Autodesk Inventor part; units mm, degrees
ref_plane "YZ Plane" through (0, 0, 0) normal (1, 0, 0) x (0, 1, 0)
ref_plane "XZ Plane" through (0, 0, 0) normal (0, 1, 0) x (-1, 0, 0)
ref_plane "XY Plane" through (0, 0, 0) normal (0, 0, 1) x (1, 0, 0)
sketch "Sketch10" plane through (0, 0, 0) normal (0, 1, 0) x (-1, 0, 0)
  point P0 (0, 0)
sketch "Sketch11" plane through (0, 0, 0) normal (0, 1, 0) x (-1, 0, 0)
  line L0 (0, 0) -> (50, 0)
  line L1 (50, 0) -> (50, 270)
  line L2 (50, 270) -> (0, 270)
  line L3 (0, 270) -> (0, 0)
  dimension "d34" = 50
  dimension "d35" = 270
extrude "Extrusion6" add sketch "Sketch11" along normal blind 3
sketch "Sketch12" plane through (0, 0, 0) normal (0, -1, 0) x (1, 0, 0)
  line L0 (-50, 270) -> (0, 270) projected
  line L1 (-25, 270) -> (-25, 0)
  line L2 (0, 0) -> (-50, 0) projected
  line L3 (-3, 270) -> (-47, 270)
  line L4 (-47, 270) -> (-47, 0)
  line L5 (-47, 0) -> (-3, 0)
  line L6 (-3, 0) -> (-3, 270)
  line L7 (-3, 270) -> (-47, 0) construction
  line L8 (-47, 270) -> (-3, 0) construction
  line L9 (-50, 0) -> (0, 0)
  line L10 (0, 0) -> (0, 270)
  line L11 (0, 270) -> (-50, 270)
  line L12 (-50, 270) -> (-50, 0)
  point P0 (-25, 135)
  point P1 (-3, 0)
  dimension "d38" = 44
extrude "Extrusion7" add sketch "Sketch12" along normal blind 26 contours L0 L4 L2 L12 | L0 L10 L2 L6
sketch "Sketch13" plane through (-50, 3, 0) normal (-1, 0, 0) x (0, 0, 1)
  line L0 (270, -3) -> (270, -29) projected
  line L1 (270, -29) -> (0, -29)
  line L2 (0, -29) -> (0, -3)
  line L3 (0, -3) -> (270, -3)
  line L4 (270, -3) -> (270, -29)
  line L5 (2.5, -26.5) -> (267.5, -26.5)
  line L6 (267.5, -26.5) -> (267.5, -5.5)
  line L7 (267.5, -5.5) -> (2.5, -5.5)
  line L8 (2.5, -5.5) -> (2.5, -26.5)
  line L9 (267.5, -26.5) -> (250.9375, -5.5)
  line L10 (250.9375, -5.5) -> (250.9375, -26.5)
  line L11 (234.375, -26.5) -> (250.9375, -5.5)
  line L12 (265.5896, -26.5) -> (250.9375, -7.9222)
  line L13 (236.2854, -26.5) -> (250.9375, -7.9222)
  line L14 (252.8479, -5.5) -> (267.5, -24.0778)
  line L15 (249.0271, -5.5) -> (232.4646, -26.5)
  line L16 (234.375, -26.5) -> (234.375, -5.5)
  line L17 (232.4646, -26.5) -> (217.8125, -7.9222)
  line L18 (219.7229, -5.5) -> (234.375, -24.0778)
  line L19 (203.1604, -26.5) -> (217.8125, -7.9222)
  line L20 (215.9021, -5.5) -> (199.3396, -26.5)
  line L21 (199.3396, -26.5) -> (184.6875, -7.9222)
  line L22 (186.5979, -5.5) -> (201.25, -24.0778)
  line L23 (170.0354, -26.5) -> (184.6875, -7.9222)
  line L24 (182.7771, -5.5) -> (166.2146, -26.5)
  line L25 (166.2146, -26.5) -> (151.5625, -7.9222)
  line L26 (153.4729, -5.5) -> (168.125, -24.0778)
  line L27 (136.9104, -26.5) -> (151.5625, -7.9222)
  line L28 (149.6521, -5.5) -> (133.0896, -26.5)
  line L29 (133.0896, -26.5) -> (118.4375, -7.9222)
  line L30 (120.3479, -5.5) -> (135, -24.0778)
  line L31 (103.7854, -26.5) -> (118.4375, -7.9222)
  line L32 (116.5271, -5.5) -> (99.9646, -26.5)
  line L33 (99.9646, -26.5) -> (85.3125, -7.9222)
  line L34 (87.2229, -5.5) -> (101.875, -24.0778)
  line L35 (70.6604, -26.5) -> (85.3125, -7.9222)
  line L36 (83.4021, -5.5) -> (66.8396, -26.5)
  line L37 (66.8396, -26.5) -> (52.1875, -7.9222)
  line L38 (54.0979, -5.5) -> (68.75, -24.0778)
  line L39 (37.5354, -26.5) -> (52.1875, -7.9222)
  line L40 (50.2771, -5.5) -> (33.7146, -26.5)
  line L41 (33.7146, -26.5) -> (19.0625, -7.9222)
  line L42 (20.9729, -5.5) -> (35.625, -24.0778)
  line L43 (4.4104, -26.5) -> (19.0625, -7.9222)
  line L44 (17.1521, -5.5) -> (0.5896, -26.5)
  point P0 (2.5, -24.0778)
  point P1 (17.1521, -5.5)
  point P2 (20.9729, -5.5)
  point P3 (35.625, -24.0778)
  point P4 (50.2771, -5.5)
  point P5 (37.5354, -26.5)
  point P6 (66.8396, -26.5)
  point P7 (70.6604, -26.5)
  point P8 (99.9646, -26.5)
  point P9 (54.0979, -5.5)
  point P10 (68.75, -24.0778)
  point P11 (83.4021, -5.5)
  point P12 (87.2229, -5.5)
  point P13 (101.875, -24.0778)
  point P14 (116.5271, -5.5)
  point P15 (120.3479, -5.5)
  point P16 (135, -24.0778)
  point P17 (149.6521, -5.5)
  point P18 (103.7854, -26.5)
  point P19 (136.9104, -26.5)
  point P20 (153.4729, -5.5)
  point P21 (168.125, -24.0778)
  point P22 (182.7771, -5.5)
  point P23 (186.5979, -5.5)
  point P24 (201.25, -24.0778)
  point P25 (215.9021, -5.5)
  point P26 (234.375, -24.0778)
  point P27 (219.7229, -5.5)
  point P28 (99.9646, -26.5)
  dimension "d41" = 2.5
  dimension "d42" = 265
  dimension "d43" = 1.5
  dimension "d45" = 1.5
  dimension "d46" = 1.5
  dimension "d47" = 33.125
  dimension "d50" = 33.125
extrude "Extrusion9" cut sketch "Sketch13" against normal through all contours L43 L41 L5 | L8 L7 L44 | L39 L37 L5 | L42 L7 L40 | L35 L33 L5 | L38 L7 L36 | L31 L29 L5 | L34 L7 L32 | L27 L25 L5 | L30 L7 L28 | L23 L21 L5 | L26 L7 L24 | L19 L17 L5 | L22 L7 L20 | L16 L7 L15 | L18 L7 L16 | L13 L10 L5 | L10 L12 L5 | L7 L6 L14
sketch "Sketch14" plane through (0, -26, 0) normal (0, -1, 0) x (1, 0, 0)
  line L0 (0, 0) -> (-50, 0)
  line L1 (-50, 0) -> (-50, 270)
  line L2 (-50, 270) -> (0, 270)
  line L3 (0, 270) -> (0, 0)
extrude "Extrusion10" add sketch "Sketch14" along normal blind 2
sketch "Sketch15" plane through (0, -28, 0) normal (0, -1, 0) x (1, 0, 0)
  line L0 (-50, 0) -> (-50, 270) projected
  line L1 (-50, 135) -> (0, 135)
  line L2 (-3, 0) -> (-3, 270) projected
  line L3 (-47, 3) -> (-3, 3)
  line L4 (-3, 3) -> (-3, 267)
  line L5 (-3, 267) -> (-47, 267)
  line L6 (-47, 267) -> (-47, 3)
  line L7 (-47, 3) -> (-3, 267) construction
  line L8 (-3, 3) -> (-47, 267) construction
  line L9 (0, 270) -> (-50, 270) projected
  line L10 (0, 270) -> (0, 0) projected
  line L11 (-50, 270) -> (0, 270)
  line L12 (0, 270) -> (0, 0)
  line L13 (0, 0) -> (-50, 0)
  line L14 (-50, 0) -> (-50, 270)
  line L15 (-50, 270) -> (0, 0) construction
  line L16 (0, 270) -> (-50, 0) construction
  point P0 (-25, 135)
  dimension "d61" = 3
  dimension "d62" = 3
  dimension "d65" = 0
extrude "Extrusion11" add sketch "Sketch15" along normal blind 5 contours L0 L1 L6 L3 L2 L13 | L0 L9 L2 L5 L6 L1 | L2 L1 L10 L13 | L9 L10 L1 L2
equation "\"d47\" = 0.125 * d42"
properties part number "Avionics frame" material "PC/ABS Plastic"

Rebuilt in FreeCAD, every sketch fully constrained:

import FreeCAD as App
import Part
import Sketcher
from FreeCAD import Vector
Q = App.Units.Quantity

doc = App.newDocument("Part")
body = doc.addObject("PartDesign::Body", "Body")

# Sketch on XZ plane
sketch1 = body.newObject("Sketcher::SketchObject", "Sketch")
sketch1.AttachmentSupport = (doc.getObject("XZ_Plane"), [""])
sketch1.MapMode = "FlatFace"
sketch1.addGeometry(Part.LineSegment(Vector(0, 270, 0), Vector(0, 0, 0)), False)
sketch1.addGeometry(Part.LineSegment(Vector(0, 0, 0), Vector(-50, 0, 0)), False)
sketch1.addGeometry(Part.LineSegment(Vector(-50, 0, 0), Vector(-50, 270, 0)), False)
sketch1.addGeometry(Part.LineSegment(Vector(-50, 270, 0), Vector(0, 270, 0)), False)
sketch1.addConstraint(Sketcher.Constraint("Coincident", 0, 2, 1, 1))
sketch1.addConstraint(Sketcher.Constraint("Coincident", 1, 2, 2, 1))
sketch1.addConstraint(Sketcher.Constraint("Coincident", 2, 2, 3, 1))
sketch1.addConstraint(Sketcher.Constraint("Coincident", 3, 2, 0, 1))
sketch1.addConstraint(Sketcher.Constraint("Vertical", 0))
sketch1.addConstraint(Sketcher.Constraint("Horizontal", 1))
sketch1.addConstraint(Sketcher.Constraint("Vertical", 2))
sketch1.addConstraint(Sketcher.Constraint("Horizontal", 3))
sketch1.addConstraint(Sketcher.Constraint("Coincident", 0, 2, -1, 1))
sketch1.addConstraint(Sketcher.Constraint("DistanceX", 1, 2, 1, 1, Q("50 mm")))
sketch1.addConstraint(Sketcher.Constraint("DistanceY", 0, 2, 0, 1, Q("270 mm")))
pad1 = body.newObject("PartDesign::Pad", "Pad")
pad1.Profile = sketch1
pad1.Length = 3
pad1.Reversed = True

# Sketch on XZ plane
sketch2 = body.newObject("Sketcher::SketchObject", "Sketch001")
sketch2.AttachmentSupport = (doc.getObject("XZ_Plane"), [""])
sketch2.MapMode = "FlatFace"
sketch2.addGeometry(Part.LineSegment(Vector(-47, 270, 0), Vector(-50, 270, 0)), False)
sketch2.addGeometry(Part.LineSegment(Vector(-50, 270, 0), Vector(-50, 0, 0)), False)
sketch2.addGeometry(Part.LineSegment(Vector(-50, 0, 0), Vector(-47, 0, 0)), False)
sketch2.addGeometry(Part.LineSegment(Vector(-47, 0, 0), Vector(-47, 270, 0)), False)
sketch2.addGeometry(Part.LineSegment(Vector(0, 270, 0), Vector(-3, 270, 0)), False)
sketch2.addGeometry(Part.LineSegment(Vector(-3, 270, 0), Vector(-3, 0, 0)), False)
sketch2.addGeometry(Part.LineSegment(Vector(-3, 0, 0), Vector(0, 0, 0)), False)
sketch2.addGeometry(Part.LineSegment(Vector(0, 0, 0), Vector(0, 270, 0)), False)
sketch2.addConstraint(Sketcher.Constraint("Coincident", 0, 2, 1, 1))
sketch2.addConstraint(Sketcher.Constraint("Coincident", 1, 2, 2, 1))
sketch2.addConstraint(Sketcher.Constraint("Coincident", 2, 2, 3, 1))
sketch2.addConstraint(Sketcher.Constraint("Coincident", 3, 2, 0, 1))
sketch2.addConstraint(Sketcher.Constraint("Coincident", 4, 2, 5, 1))
sketch2.addConstraint(Sketcher.Constraint("Coincident", 5, 2, 6, 1))
sketch2.addConstraint(Sketcher.Constraint("Coincident", 6, 2, 7, 1))
sketch2.addConstraint(Sketcher.Constraint("Coincident", 7, 2, 4, 1))
sketch2.addConstraint(Sketcher.Constraint("Horizontal", 0))
sketch2.addConstraint(Sketcher.Constraint("Vertical", 1))
sketch2.addConstraint(Sketcher.Constraint("Horizontal", 2))
sketch2.addConstraint(Sketcher.Constraint("Vertical", 3))
sketch2.addConstraint(Sketcher.Constraint("Horizontal", 4))
sketch2.addConstraint(Sketcher.Constraint("Vertical", 5))
sketch2.addConstraint(Sketcher.Constraint("Horizontal", 6))
sketch2.addConstraint(Sketcher.Constraint("Vertical", 7))
sketch2.addConstraint(Sketcher.Constraint("Coincident", 6, 2, -1, 1))
sketch2.addConstraint(Sketcher.Constraint("PointOnObject", 1, 2, -1))
sketch2.addConstraint(Sketcher.Constraint("Horizontal", 3, 2, 4, 2))
sketch2.addConstraint(Sketcher.Constraint("Equal", 2, 4))
sketch2.addConstraint(Sketcher.Constraint("DistanceX", 3, 2, 4, 2, Q("44 mm")))
sketch2.addConstraint(Sketcher.Constraint("DistanceX", 0, 2, 0, 1, Q("3 mm")))
sketch2.addConstraint(Sketcher.Constraint("DistanceY", 1, 2, 1, 1, Q("270 mm")))
pad2 = body.newObject("PartDesign::Pad", "Pad001")
pad2.Profile = sketch2
pad2.Length = 26

# Sketch on YZ plane
sketch3 = body.newObject("Sketcher::SketchObject", "Sketch002")
sketch3.AttachmentSupport = (doc.getObject("YZ_Plane"), [""])
sketch3.MapMode = "FlatFace"
sketch3.AttachmentOffset = App.Placement(Vector(0, 0, -50), App.Rotation())
sketch3.addGeometry(Part.LineSegment(Vector(-5, 19, 0), Vector(-24, 4, 0)), False)
sketch3.addGeometry(Part.LineSegment(Vector(-24, 4, 0), Vector(-24, 34, 0)), False)
sketch3.addGeometry(Part.LineSegment(Vector(-24, 34, 0), Vector(-5, 19, 0)), False)
sketch3.addGeometry(Part.LineSegment(Vector(-2, 2, 0), Vector(-21, 2, 0)), False)
sketch3.addGeometry(Part.LineSegment(Vector(-21, 2, 0), Vector(-2, 17, 0)), False)
sketch3.addGeometry(Part.LineSegment(Vector(-2, 17, 0), Vector(-2, 2, 0)), False)
sketch3.addGeometry(Part.LineSegment(Vector(-5, 52, 0), Vector(-24, 38, 0)), False)
sketch3.addGeometry(Part.LineSegment(Vector(-24, 38, 0), Vector(-24, 67, 0)), False)
sketch3.addGeometry(Part.LineSegment(Vector(-24, 67, 0), Vector(-5, 52, 0)), False)
sketch3.addGeometry(Part.LineSegment(Vector(-2, 21, 0), Vector(-21, 36, 0)), False)
sketch3.addGeometry(Part.LineSegment(Vector(-21, 36, 0), Vector(-2, 50, 0)), False)
sketch3.addGeometry(Part.LineSegment(Vector(-2, 50, 0), Vector(-2, 21, 0)), False)
sketch3.addGeometry(Part.LineSegment(Vector(-5, 85, 0), Vector(-24, 71, 0)), False)
sketch3.addGeometry(Part.LineSegment(Vector(-24, 71, 0), Vector(-24, 100, 0)), False)
sketch3.addGeometry(Part.LineSegment(Vector(-24, 100, 0), Vector(-5, 85, 0)), False)
sketch3.addGeometry(Part.LineSegment(Vector(-2, 54, 0), Vector(-21, 69, 0)), False)
sketch3.addGeometry(Part.LineSegment(Vector(-21, 69, 0), Vector(-2, 83, 0)), False)
sketch3.addGeometry(Part.LineSegment(Vector(-2, 83, 0), Vector(-2, 54, 0)), False)
sketch3.addGeometry(Part.LineSegment(Vector(-5, 118, 0), Vector(-24, 104, 0)), False)
sketch3.addGeometry(Part.LineSegment(Vector(-24, 104, 0), Vector(-24, 133, 0)), False)
sketch3.addGeometry(Part.LineSegment(Vector(-24, 133, 0), Vector(-5, 118, 0)), False)
sketch3.addGeometry(Part.LineSegment(Vector(-2, 87, 0), Vector(-21, 102, 0)), False)
sketch3.addGeometry(Part.LineSegment(Vector(-21, 102, 0), Vector(-2, 117, 0)), False)
sketch3.addGeometry(Part.LineSegment(Vector(-2, 117, 0), Vector(-2, 87, 0)), False)
sketch3.addGeometry(Part.LineSegment(Vector(-5, 152, 0), Vector(-24, 137, 0)), False)
sketch3.addGeometry(Part.LineSegment(Vector(-24, 137, 0), Vector(-24, 166, 0)), False)
sketch3.addGeometry(Part.LineSegment(Vector(-24, 166, 0), Vector(-5, 152, 0)), False)
sketch3.addGeometry(Part.LineSegment(Vector(-2, 120, 0), Vector(-21, 135, 0)), False)
sketch3.addGeometry(Part.LineSegment(Vector(-21, 135, 0), Vector(-2, 150, 0)), False)
sketch3.addGeometry(Part.LineSegment(Vector(-2, 150, 0), Vector(-2, 120, 0)), False)
sketch3.addGeometry(Part.LineSegment(Vector(-5, 185, 0), Vector(-24, 170, 0)), False)
sketch3.addGeometry(Part.LineSegment(Vector(-24, 170, 0), Vector(-24, 199, 0)), False)
sketch3.addGeometry(Part.LineSegment(Vector(-24, 199, 0), Vector(-5, 185, 0)), False)
sketch3.addGeometry(Part.LineSegment(Vector(-2, 153, 0), Vector(-21, 168, 0)), False)
sketch3.addGeometry(Part.LineSegment(Vector(-21, 168, 0), Vector(-2, 183, 0)), False)
sketch3.addGeometry(Part.LineSegment(Vector(-2, 183, 0), Vector(-2, 153, 0)), False)
sketch3.addGeometry(Part.LineSegment(Vector(-5, 218, 0), Vector(-24, 203, 0)), False)
sketch3.addGeometry(Part.LineSegment(Vector(-24, 203, 0), Vector(-24, 232, 0)), False)
sketch3.addGeometry(Part.LineSegment(Vector(-24, 232, 0), Vector(-5, 218, 0)), False)
sketch3.addGeometry(Part.LineSegment(Vector(-2, 187, 0), Vector(-21, 201, 0)), False)
sketch3.addGeometry(Part.LineSegment(Vector(-21, 201, 0), Vector(-2, 216, 0)), False)
sketch3.addGeometry(Part.LineSegment(Vector(-2, 216, 0), Vector(-2, 187, 0)), False)
sketch3.addGeometry(Part.LineSegment(Vector(-2, 249, 0), Vector(-2, 220, 0)), False)
sketch3.addGeometry(Part.LineSegment(Vector(-2, 220, 0), Vector(-21, 234, 0)), False)
sketch3.addGeometry(Part.LineSegment(Vector(-21, 234, 0), Vector(-2, 249, 0)), False)
sketch3.addGeometry(Part.LineSegment(Vector(-5, 251, 0), Vector(-24, 236, 0)), False)
sketch3.addGeometry(Part.LineSegment(Vector(-24, 236, 0), Vector(-24, 266, 0)), False)
sketch3.addGeometry(Part.LineSegment(Vector(-24, 266, 0), Vector(-5, 251, 0)), False)
sketch3.addGeometry(Part.LineSegment(Vector(-2, 268, 0), Vector(-2, 253, 0)), False)
sketch3.addGeometry(Part.LineSegment(Vector(-2, 253, 0), Vector(-21, 268, 0)), False)
sketch3.addGeometry(Part.LineSegment(Vector(-21, 268, 0), Vector(-2, 268, 0)), False)
sketch3.addConstraint(Sketcher.Constraint("Coincident", 0, 2, 1, 1))
sketch3.addConstraint(Sketcher.Constraint("Coincident", 1, 2, 2, 1))
sketch3.addConstraint(Sketcher.Constraint("Coincident", 2, 2, 0, 1))
sketch3.addConstraint(Sketcher.Constraint("Coincident", 3, 2, 4, 1))
sketch3.addConstraint(Sketcher.Constraint("Coincident", 4, 2, 5, 1))
sketch3.addConstraint(Sketcher.Constraint("Coincident", 5, 2, 3, 1))
sketch3.addConstraint(Sketcher.Constraint("Coincident", 6, 2, 7, 1))
sketch3.addConstraint(Sketcher.Constraint("Coincident", 7, 2, 8, 1))
sketch3.addConstraint(Sketcher.Constraint("Coincident", 8, 2, 6, 1))
sketch3.addConstraint(Sketcher.Constraint("Coincident", 9, 2, 10, 1))
sketch3.addConstraint(Sketcher.Constraint("Coincident", 10, 2, 11, 1))
sketch3.addConstraint(Sketcher.Constraint("Coincident", 11, 2, 9, 1))
sketch3.addConstraint(Sketcher.Constraint("Coincident", 12, 2, 13, 1))
sketch3.addConstraint(Sketcher.Constraint("Coincident", 13, 2, 14, 1))
sketch3.addConstraint(Sketcher.Constraint("Coincident", 14, 2, 12, 1))
sketch3.addConstraint(Sketcher.Constraint("Coincident", 15, 2, 16, 1))
sketch3.addConstraint(Sketcher.Constraint("Coincident", 16, 2, 17, 1))
sketch3.addConstraint(Sketcher.Constraint("Coincident", 17, 2, 15, 1))
sketch3.addConstraint(Sketcher.Constraint("Coincident", 18, 2, 19, 1))
sketch3.addConstraint(Sketcher.Constraint("Coincident", 19, 2, 20, 1))
sketch3.addConstraint(Sketcher.Constraint("Coincident", 20, 2, 18, 1))
sketch3.addConstraint(Sketcher.Constraint("Coincident", 21, 2, 22, 1))
sketch3.addConstraint(Sketcher.Constraint("Coincident", 22, 2, 23, 1))
sketch3.addConstraint(Sketcher.Constraint("Coincident", 23, 2, 21, 1))
sketch3.addConstraint(Sketcher.Constraint("Coincident", 24, 2, 25, 1))
sketch3.addConstraint(Sketcher.Constraint("Coincident", 25, 2, 26, 1))
sketch3.addConstraint(Sketcher.Constraint("Coincident", 26, 2, 24, 1))
sketch3.addConstraint(Sketcher.Constraint("Coincident", 27, 2, 28, 1))
sketch3.addConstraint(Sketcher.Constraint("Coincident", 28, 2, 29, 1))
sketch3.addConstraint(Sketcher.Constraint("Coincident", 29, 2, 27, 1))
sketch3.addConstraint(Sketcher.Constraint("Coincident", 30, 2, 31, 1))
sketch3.addConstraint(Sketcher.Constraint("Coincident", 31, 2, 32, 1))
sketch3.addConstraint(Sketcher.Constraint("Coincident", 32, 2, 30, 1))
sketch3.addConstraint(Sketcher.Constraint("Coincident", 33, 2, 34, 1))
sketch3.addConstraint(Sketcher.Constraint("Coincident", 34, 2, 35, 1))
sketch3.addConstraint(Sketcher.Constraint("Coincident", 35, 2, 33, 1))
sketch3.addConstraint(Sketcher.Constraint("Coincident", 36, 2, 37, 1))
sketch3.addConstraint(Sketcher.Constraint("Coincident", 37, 2, 38, 1))
sketch3.addConstraint(Sketcher.Constraint("Coincident", 38, 2, 36, 1))
sketch3.addConstraint(Sketcher.Constraint("Coincident", 39, 2, 40, 1))
sketch3.addConstraint(Sketcher.Constraint("Coincident", 40, 2, 41, 1))
sketch3.addConstraint(Sketcher.Constraint("Coincident", 41, 2, 39, 1))
sketch3.addConstraint(Sketcher.Constraint("Coincident", 42, 2, 43, 1))
sketch3.addConstraint(Sketcher.Constraint("Coincident", 43, 2, 44, 1))
sketch3.addConstraint(Sketcher.Constraint("Coincident", 44, 2, 42, 1))
sketch3.addConstraint(Sketcher.Constraint("Coincident", 45, 2, 46, 1))
sketch3.addConstraint(Sketcher.Constraint("Coincident", 46, 2, 47, 1))
sketch3.addConstraint(Sketcher.Constraint("Coincident", 47, 2, 45, 1))
sketch3.addConstraint(Sketcher.Constraint("Coincident", 48, 2, 49, 1))
sketch3.addConstraint(Sketcher.Constraint("Coincident", 49, 2, 50, 1))
sketch3.addConstraint(Sketcher.Constraint("Coincident", 50, 2, 48, 1))
sketch3.addConstraint(Sketcher.Constraint("Vertical", 1))
sketch3.addConstraint(Sketcher.Constraint("Horizontal", 3))
sketch3.addConstraint(Sketcher.Constraint("Vertical", 5))
sketch3.addConstraint(Sketcher.Constraint("Vertical", 7))
sketch3.addConstraint(Sketcher.Constraint("Vertical", 11))
sketch3.addConstraint(Sketcher.Constraint("Vertical", 13))
sketch3.addConstraint(Sketcher.Constraint("Vertical", 17))
sketch3.addConstraint(Sketcher.Constraint("Vertical", 19))
sketch3.addConstraint(Sketcher.Constraint("Vertical", 23))
sketch3.addConstraint(Sketcher.Constraint("Vertical", 25))
sketch3.addConstraint(Sketcher.Constraint("Vertical", 29))
sketch3.addConstraint(Sketcher.Constraint("Vertical", 31))
sketch3.addConstraint(Sketcher.Constraint("Vertical", 35))
sketch3.addConstraint(Sketcher.Constraint("Vertical", 37))
sketch3.addConstraint(Sketcher.Constraint("Vertical", 41))
sketch3.addConstraint(Sketcher.Constraint("Vertical", 42))
sketch3.addConstraint(Sketcher.Constraint("Vertical", 46))
sketch3.addConstraint(Sketcher.Constraint("Vertical", 48))
sketch3.addConstraint(Sketcher.Constraint("Horizontal", 50))
sketch3.addConstraint(Sketcher.Constraint("Parallel", 0, 4))
sketch3.addConstraint(Sketcher.Constraint("Parallel", 4, 6))
sketch3.addConstraint(Sketcher.Constraint("Parallel", 2, 8))
sketch3.addConstraint(Sketcher.Constraint("Parallel", 8, 9))
sketch3.addConstraint(Sketcher.Constraint("Parallel", 6, 10))
sketch3.addConstraint(Sketcher.Constraint("Parallel", 10, 12))
sketch3.addConstraint(Sketcher.Constraint("Parallel", 9, 14))
sketch3.addConstraint(Sketcher.Constraint("Parallel", 14, 15))
sketch3.addConstraint(Sketcher.Constraint("Parallel", 12, 16))
sketch3.addConstraint(Sketcher.Constraint("Parallel", 16, 18))
sketch3.addConstraint(Sketcher.Constraint("Parallel", 15, 20))
sketch3.addConstraint(Sketcher.Constraint("Parallel", 20, 21))
sketch3.addConstraint(Sketcher.Constraint("Parallel", 18, 22))
sketch3.addConstraint(Sketcher.Constraint("Parallel", 22, 24))
sketch3.addConstraint(Sketcher.Constraint("Parallel", 21, 26))
sketch3.addConstraint(Sketcher.Constraint("Parallel", 26, 27))
sketch3.addConstraint(Sketcher.Constraint("Parallel", 24, 28))
sketch3.addConstraint(Sketcher.Constraint("Parallel", 28, 30))
sketch3.addConstraint(Sketcher.Constraint("Parallel", 27, 32))
sketch3.addConstraint(Sketcher.Constraint("Parallel", 32, 33))
sketch3.addConstraint(Sketcher.Constraint("Parallel", 30, 34))
sketch3.addConstraint(Sketcher.Constraint("Parallel", 34, 36))
sketch3.addConstraint(Sketcher.Constraint("Parallel", 33, 38))
sketch3.addConstraint(Sketcher.Constraint("Parallel", 38, 39))
sketch3.addConstraint(Sketcher.Constraint("Parallel", 36, 40))
sketch3.addConstraint(Sketcher.Constraint("Parallel", 39, 43))
sketch3.addConstraint(Sketcher.Constraint("Parallel", 40, 44))
sketch3.addConstraint(Sketcher.Constraint("Parallel", 44, 45))
sketch3.addConstraint(Sketcher.Constraint("Parallel", 43, 47))
sketch3.addConstraint(Sketcher.Constraint("Parallel", 47, 49))
sketch3.addConstraint(Sketcher.Constraint("Vertical", 1, 2, 6, 2))
sketch3.addConstraint(Sketcher.Constraint("Vertical", 2, 2, 8, 2))
sketch3.addConstraint(Sketcher.Constraint("Vertical", 3, 2, 9, 2))
sketch3.addConstraint(Sketcher.Constraint("Vertical", 5, 2, 10, 2))
sketch3.addConstraint(Sketcher.Constraint("Vertical", 7, 2, 12, 2))
sketch3.addConstraint(Sketcher.Constraint("Vertical", 8, 2, 14, 2))
sketch3.addConstraint(Sketcher.Constraint("Vertical", 9, 2, 15, 2))
sketch3.addConstraint(Sketcher.Constraint("Vertical", 11, 2, 16, 2))
sketch3.addConstraint(Sketcher.Constraint("Vertical", 13, 2, 18, 2))
sketch3.addConstraint(Sketcher.Constraint("Vertical", 14, 2, 20, 2))
sketch3.addConstraint(Sketcher.Constraint("Vertical", 15, 2, 21, 2))
sketch3.addConstraint(Sketcher.Constraint("Vertical", 17, 2, 22, 2))
sketch3.addConstraint(Sketcher.Constraint("Vertical", 19, 2, 24, 2))
sketch3.addConstraint(Sketcher.Constraint("Vertical", 20, 2, 26, 2))
sketch3.addConstraint(Sketcher.Constraint("Vertical", 21, 2, 27, 2))
sketch3.addConstraint(Sketcher.Constraint("Vertical", 23, 2, 28, 2))
sketch3.addConstraint(Sketcher.Constraint("Vertical", 25, 2, 30, 2))
sketch3.addConstraint(Sketcher.Constraint("Vertical", 26, 2, 32, 2))
sketch3.addConstraint(Sketcher.Constraint("Vertical", 27, 2, 33, 2))
sketch3.addConstraint(Sketcher.Constraint("Vertical", 29, 2, 34, 2))
sketch3.addConstraint(Sketcher.Constraint("Vertical", 31, 2, 36, 2))
sketch3.addConstraint(Sketcher.Constraint("Vertical", 32, 2, 38, 2))
sketch3.addConstraint(Sketcher.Constraint("Vertical", 33, 2, 39, 2))
sketch3.addConstraint(Sketcher.Constraint("Vertical", 35, 2, 40, 2))
sketch3.addConstraint(Sketcher.Constraint("Vertical", 41, 2, 42, 2))
sketch3.addConstraint(Sketcher.Constraint("Vertical", 39, 2, 43, 2))
sketch3.addConstraint(Sketcher.Constraint("Vertical", 37, 2, 45, 2))
sketch3.addConstraint(Sketcher.Constraint("Vertical", 38, 2, 47, 2))
sketch3.addConstraint(Sketcher.Constraint("Vertical", 44, 2, 48, 2))
sketch3.addConstraint(Sketcher.Constraint("Vertical", 43, 2, 49, 2))
sketch3.addConstraint(Sketcher.Constraint("Equal", 7, 11))
sketch3.addConstraint(Sketcher.Constraint("Equal", 5, 48))
sketch3.addConstraint(Sketcher.Constraint("DistanceY", -1, 1, 3, 2, Q("2.5 mm")))
sketch3.addConstraint(Sketcher.Constraint("DistanceX", 4, 2, -1, 1, Q("2.5 mm")))
sketch3.addConstraint(Sketcher.Constraint("DistanceY", -1, 1, 27, 2, Q("135 mm")))
sketch3.addConstraint(Sketcher.Constraint("DistanceX", 0, 2, 4, 2, Q("21 mm")))
sketch3.addConstraint(Sketcher.Constraint("DistanceY", 0, 2, 6, 2, Q("33.125 mm")))
sketch3.addConstraint(Sketcher.Constraint("DistanceY", 6, 2, 12, 2, Q("33.125 mm")))
sketch3.addConstraint(Sketcher.Constraint("DistanceY", 12, 2, 18, 2, Q("33.125 mm")))
sketch3.addConstraint(Sketcher.Constraint("DistanceY", 18, 2, 24, 2, Q("33.125 mm")))
sketch3.addConstraint(Sketcher.Constraint("DistanceY", 24, 2, 30, 2, Q("33.125 mm")))
sketch3.addConstraint(Sketcher.Constraint("DistanceY", 30, 2, 36, 2, Q("33.125 mm")))
sketch3.addConstraint(Sketcher.Constraint("DistanceY", 40, 2, 44, 2, Q("33.125 mm")))
sketch3.addConstraint(Sketcher.Constraint("DistanceY", 37, 2, 46, 2, Q("33.125 mm")))
sketch3.addConstraint(Sketcher.Constraint("DistanceY", -1, 1, 49, 2, Q("267.5 mm")))
sketch3.addConstraint(Sketcher.Constraint("DistanceY", 5, 2, 5, 1, Q("14.652 mm")))
sketch3.addConstraint(Sketcher.Constraint("DistanceY", -1, 1, 15, 2, Q("68.75 mm")))
sketch3.addConstraint(Sketcher.Constraint("DistanceY", -1, 1, 39, 2, Q("201.25 mm")))
sketch3.addConstraint(Sketcher.Constraint("DistanceX", 3, 2, 3, 1, Q("18.5778 mm")))
sketch3.addConstraint(Sketcher.Constraint("DistanceY", -1, 1, 9, 2, Q("35.625 mm")))
sketch3.addConstraint(Sketcher.Constraint("DistanceY", -1, 1, 21, 2, Q("101.875 mm")))
sketch3.addConstraint(Sketcher.Constraint("DistanceY", -1, 1, 33, 2, Q("168.125 mm")))
sketch3.addConstraint(Sketcher.Constraint("DistanceY", -1, 1, 0, 2, Q("4.4104 mm")))
pocket1 = body.newObject("PartDesign::Pocket", "Pocket")
pocket1.Profile = sketch3
pocket1.Type = "ThroughAll"
pocket1.Reversed = True

# Sketch on XZ plane
sketch4 = body.newObject("Sketcher::SketchObject", "Sketch003")
sketch4.AttachmentSupport = (doc.getObject("XZ_Plane"), [""])
sketch4.MapMode = "FlatFace"
sketch4.AttachmentOffset = App.Placement(Vector(0, 0, 26), App.Rotation())
sketch4.addGeometry(Part.LineSegment(Vector(-50, 0, 0), Vector(0, 0, 0)), False)
sketch4.addGeometry(Part.LineSegment(Vector(0, 0, 0), Vector(0, 270, 0)), False)
sketch4.addGeometry(Part.LineSegment(Vector(0, 270, 0), Vector(-50, 270, 0)), False)
sketch4.addGeometry(Part.LineSegment(Vector(-50, 270, 0), Vector(-50, 0, 0)), False)
sketch4.addConstraint(Sketcher.Constraint("Coincident", 0, 2, 1, 1))
sketch4.addConstraint(Sketcher.Constraint("Coincident", 1, 2, 2, 1))
sketch4.addConstraint(Sketcher.Constraint("Coincident", 2, 2, 3, 1))
sketch4.addConstraint(Sketcher.Constraint("Coincident", 3, 2, 0, 1))
sketch4.addConstraint(Sketcher.Constraint("Horizontal", 0))
sketch4.addConstraint(Sketcher.Constraint("Vertical", 1))
sketch4.addConstraint(Sketcher.Constraint("Horizontal", 2))
sketch4.addConstraint(Sketcher.Constraint("Vertical", 3))
sketch4.addConstraint(Sketcher.Constraint("Coincident", 0, 2, -1, 1))
sketch4.addConstraint(Sketcher.Constraint("DistanceX", 0, 1, 0, 2, Q("50 mm")))
sketch4.addConstraint(Sketcher.Constraint("DistanceY", 1, 1, 1, 2, Q("270 mm")))
pad3 = body.newObject("PartDesign::Pad", "Pad002")
pad3.Profile = sketch4
pad3.Length = 2

# Sketch on XZ plane
sketch5 = body.newObject("Sketcher::SketchObject", "Sketch004")
sketch5.AttachmentSupport = (doc.getObject("XZ_Plane"), [""])
sketch5.MapMode = "FlatFace"
sketch5.AttachmentOffset = App.Placement(Vector(0, 0, 28), App.Rotation())
sketch5.addGeometry(Part.LineSegment(Vector(-50, 0, 0), Vector(0, 0, 0)), False)
sketch5.addGeometry(Part.LineSegment(Vector(0, 0, 0), Vector(0, 270, 0)), False)
sketch5.addGeometry(Part.LineSegment(Vector(0, 270, 0), Vector(-50, 270, 0)), False)
sketch5.addGeometry(Part.LineSegment(Vector(-50, 270, 0), Vector(-50, 0, 0)), False)
sketch5.addGeometry(Part.LineSegment(Vector(-47, 3, 0), Vector(-47, 267, 0)), False)
sketch5.addGeometry(Part.LineSegment(Vector(-47, 267, 0), Vector(-3, 267, 0)), False)
sketch5.addGeometry(Part.LineSegment(Vector(-3, 267, 0), Vector(-3, 3, 0)), False)
sketch5.addGeometry(Part.LineSegment(Vector(-3, 3, 0), Vector(-47, 3, 0)), False)
sketch5.addConstraint(Sketcher.Constraint("Coincident", 0, 2, 1, 1))
sketch5.addConstraint(Sketcher.Constraint("Coincident", 1, 2, 2, 1))
sketch5.addConstraint(Sketcher.Constraint("Coincident", 2, 2, 3, 1))
sketch5.addConstraint(Sketcher.Constraint("Coincident", 3, 2, 0, 1))
sketch5.addConstraint(Sketcher.Constraint("Coincident", 4, 2, 5, 1))
sketch5.addConstraint(Sketcher.Constraint("Coincident", 5, 2, 6, 1))
sketch5.addConstraint(Sketcher.Constraint("Coincident", 6, 2, 7, 1))
sketch5.addConstraint(Sketcher.Constraint("Coincident", 7, 2, 4, 1))
sketch5.addConstraint(Sketcher.Constraint("Horizontal", 0))
sketch5.addConstraint(Sketcher.Constraint("Vertical", 1))
sketch5.addConstraint(Sketcher.Constraint("Horizontal", 2))
sketch5.addConstraint(Sketcher.Constraint("Vertical", 3))
sketch5.addConstraint(Sketcher.Constraint("Vertical", 4))
sketch5.addConstraint(Sketcher.Constraint("Horizontal", 5))
sketch5.addConstraint(Sketcher.Constraint("Vertical", 6))
sketch5.addConstraint(Sketcher.Constraint("Horizontal", 7))
sketch5.addConstraint(Sketcher.Constraint("Coincident", 0, 2, -1, 1))
sketch5.addConstraint(Sketcher.Constraint("DistanceX", 5, 2, -1, 1, Q("3 mm")))
sketch5.addConstraint(Sketcher.Constraint("DistanceY", -1, 1, 6, 2, Q("3 mm")))
sketch5.addConstraint(Sketcher.Constraint("DistanceX", 2, 2, 4, 2, Q("3 mm")))
sketch5.addConstraint(Sketcher.Constraint("DistanceY", 4, 2, 2, 2, Q("3 mm")))
sketch5.addConstraint(Sketcher.Constraint("DistanceX", 0, 1, 0, 2, Q("50 mm")))
sketch5.addConstraint(Sketcher.Constraint("DistanceY", 1, 1, 1, 2, Q("270 mm")))
pad4 = body.newObject("PartDesign::Pad", "Pad003")
pad4.Profile = sketch5
pad4.Length = 5

doc.recompute()
